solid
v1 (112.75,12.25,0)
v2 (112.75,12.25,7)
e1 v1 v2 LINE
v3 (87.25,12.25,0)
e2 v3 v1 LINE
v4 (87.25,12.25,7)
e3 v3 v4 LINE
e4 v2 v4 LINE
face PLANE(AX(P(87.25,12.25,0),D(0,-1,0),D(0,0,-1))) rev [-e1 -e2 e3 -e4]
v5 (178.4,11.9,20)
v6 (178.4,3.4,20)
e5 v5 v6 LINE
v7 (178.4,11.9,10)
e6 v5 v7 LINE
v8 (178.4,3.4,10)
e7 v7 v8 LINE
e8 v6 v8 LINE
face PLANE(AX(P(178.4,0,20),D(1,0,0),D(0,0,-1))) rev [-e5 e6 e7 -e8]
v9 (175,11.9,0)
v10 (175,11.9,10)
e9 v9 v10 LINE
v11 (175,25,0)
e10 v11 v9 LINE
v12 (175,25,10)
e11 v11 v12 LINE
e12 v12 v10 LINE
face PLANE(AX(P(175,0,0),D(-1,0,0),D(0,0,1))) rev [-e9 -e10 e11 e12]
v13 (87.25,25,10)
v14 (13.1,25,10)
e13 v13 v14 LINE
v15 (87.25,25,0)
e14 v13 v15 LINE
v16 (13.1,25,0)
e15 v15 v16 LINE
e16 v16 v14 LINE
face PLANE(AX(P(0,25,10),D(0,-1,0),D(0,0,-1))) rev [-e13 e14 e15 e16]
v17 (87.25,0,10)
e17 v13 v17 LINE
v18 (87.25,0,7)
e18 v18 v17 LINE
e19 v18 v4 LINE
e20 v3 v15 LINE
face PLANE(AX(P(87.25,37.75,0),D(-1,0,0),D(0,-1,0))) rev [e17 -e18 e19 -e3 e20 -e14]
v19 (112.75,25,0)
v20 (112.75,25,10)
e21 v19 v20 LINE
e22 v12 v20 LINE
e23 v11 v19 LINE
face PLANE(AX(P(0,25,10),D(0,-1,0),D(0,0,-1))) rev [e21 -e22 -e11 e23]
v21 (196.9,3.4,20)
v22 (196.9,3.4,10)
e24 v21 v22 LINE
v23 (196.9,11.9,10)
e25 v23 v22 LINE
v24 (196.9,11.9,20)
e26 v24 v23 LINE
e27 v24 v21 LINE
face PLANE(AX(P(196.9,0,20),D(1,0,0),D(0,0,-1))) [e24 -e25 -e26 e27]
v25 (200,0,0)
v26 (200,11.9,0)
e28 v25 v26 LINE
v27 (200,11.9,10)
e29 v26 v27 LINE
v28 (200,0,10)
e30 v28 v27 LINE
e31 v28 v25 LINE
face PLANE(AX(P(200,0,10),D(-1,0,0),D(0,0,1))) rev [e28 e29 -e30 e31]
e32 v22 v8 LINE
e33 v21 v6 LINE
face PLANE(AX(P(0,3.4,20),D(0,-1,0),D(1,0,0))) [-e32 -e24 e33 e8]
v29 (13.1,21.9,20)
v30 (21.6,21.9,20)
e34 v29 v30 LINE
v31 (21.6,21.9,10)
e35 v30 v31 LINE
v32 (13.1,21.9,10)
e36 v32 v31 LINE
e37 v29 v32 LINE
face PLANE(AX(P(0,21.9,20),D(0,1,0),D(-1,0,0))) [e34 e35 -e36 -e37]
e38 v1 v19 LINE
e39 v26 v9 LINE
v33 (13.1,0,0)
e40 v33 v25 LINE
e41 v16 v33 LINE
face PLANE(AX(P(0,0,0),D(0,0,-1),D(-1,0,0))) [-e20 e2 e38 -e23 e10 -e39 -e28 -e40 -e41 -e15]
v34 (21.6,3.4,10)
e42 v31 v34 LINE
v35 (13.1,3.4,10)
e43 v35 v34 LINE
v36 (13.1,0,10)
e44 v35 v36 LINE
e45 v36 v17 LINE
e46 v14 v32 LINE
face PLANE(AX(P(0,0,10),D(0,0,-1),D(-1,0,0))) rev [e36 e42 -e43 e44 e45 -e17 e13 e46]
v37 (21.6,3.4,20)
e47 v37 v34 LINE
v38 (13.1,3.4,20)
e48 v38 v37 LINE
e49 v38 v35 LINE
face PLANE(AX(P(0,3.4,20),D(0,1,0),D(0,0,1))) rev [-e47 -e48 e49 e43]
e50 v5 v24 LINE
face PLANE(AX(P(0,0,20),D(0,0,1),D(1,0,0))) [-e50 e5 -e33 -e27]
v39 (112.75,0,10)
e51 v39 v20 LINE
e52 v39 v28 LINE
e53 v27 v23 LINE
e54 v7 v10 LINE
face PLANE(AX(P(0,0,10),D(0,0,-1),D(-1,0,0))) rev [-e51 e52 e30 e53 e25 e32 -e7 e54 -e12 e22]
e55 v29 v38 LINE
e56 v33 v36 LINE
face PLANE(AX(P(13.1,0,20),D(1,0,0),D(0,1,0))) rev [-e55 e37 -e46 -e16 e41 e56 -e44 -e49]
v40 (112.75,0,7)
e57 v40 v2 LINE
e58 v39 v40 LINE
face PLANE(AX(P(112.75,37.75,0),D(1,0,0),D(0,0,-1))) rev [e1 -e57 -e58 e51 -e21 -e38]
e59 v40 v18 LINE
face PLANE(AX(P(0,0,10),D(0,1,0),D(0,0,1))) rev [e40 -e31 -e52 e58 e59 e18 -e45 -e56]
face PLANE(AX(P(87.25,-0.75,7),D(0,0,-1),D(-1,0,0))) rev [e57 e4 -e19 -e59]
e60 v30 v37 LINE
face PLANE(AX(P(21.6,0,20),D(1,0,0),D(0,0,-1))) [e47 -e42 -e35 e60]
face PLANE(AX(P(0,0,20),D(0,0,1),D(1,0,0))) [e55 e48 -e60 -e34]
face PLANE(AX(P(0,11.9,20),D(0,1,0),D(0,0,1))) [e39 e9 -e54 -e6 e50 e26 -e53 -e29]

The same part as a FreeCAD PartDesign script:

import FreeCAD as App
import Part
import Sketcher


def add_polygon(sketch, points):
    """Adds a closed chain of lines whose ends are joined by coincident constraints."""
    first, n = sketch.GeometryCount, len(points)
    for a, b in zip(points, points[1:] + points[:1]):
        sketch.addGeometry(Part.LineSegment(App.Vector(*a, 0), App.Vector(*b, 0)), False)
    for i in range(n):
        sketch.addConstraint(Sketcher.Constraint("Coincident", first + i, 2, first + (i + 1) % n, 1))

doc = App.newDocument("Part")
body = doc.addObject("PartDesign::Body", "Body")

# Sketch on XY plane
sketch1 = doc.addObject("Sketcher::SketchObject", "Sketch")
body.addObject(sketch1)
sketch1.AttachmentSupport = (doc.XY_Plane, [""])
sketch1.MapMode = "FlatFace"
add_polygon(sketch1, [(0, 25), (0, 0), (200, 0), (200, 25)])  # lines 0-3
sketch1.addConstraint([
    Sketcher.Constraint("Vertical", 0),
    Sketcher.Constraint("Horizontal", 1),
    Sketcher.Constraint("Vertical", 2),
    Sketcher.Constraint("Horizontal", 3),
    Sketcher.Constraint("Coincident", 0, 2, -1, 1),
    Sketcher.Constraint("DistanceX", 1, 1, 1, 2, 200.0),
    Sketcher.Constraint("DistanceY", 0, 2, 0, 1, 25.0),
])
pad1 = doc.addObject("PartDesign::Pad", "Pad")
body.addObject(pad1)
pad1.Profile = sketch1
pad1.Length = 10

# Sketch on XY plane
sketch2 = doc.addObject("Sketcher::SketchObject", "Sketch001")
body.addObject(sketch2)
sketch2.AttachmentSupport = (doc.XY_Plane, [""])
sketch2.MapMode = "FlatFace"
sketch2.AttachmentOffset = App.Placement(App.Vector(0, 0, 10), App.Rotation())
add_polygon(sketch2, [(87, 38), (87, 12), (113, 12), (113, 38)])  # lines 0-3
sketch2.addConstraint([
    Sketcher.Constraint("Vertical", 0),
    Sketcher.Constraint("Horizontal", 1),
    Sketcher.Constraint("Vertical", 2),
    Sketcher.Constraint("Horizontal", 3),
    Sketcher.Constraint("Equal", 3, 0),
    Sketcher.Constraint("DistanceX", 1, 1, 1, 2, 25.5),
    Sketcher.Constraint("DistanceX", -1, 1, 0, 2, 87.25),
    Sketcher.Constraint("DistanceY", -1, 1, 0, 2, 12.25),
])
pocket1 = doc.addObject("PartDesign::Pocket", "Pocket")
body.addObject(pocket1)
pocket1.Profile = sketch2
pocket1.Length = 10

# Sketch on XY plane
sketch3 = doc.addObject("Sketcher::SketchObject", "Sketch002")
body.addObject(sketch3)
sketch3.AttachmentSupport = (doc.XY_Plane, [""])
sketch3.MapMode = "FlatFace"
sketch3.AttachmentOffset = App.Placement(App.Vector(0, 0, 10), App.Rotation())
add_polygon(sketch3, [(178, 12), (178, 3), (197, 3), (197, 12)])  # lines 0-3
add_polygon(sketch3, [(13, 22), (13, 3), (22, 3), (22, 22)])  # lines 4-7
sketch3.addConstraint([
    Sketcher.Constraint("Vertical", 0),
    Sketcher.Constraint("Horizontal", 1),
    Sketcher.Constraint("Vertical", 2),
    Sketcher.Constraint("Horizontal", 3),
    Sketcher.Constraint("Vertical", 4),
    Sketcher.Constraint("Horizontal", 5),
    Sketcher.Constraint("Vertical", 6),
    Sketcher.Constraint("Horizontal", 7),
    Sketcher.Constraint("Horizontal", 1, 2, 4, 2),
    Sketcher.Constraint("Equal", 7, 0),
    Sketcher.Constraint("Equal", 3, 4),
    Sketcher.Constraint("DistanceX", 1, 1, 1, 2, 18.5),
    Sketcher.Constraint("DistanceX", 5, 1, 5, 2, 8.5),
    Sketcher.Constraint("DistanceX", -1, 1, 0, 2, 178.4),
    Sketcher.Constraint("DistanceY", -1, 1, 0, 2, 3.4),
    Sketcher.Constraint("DistanceX", -1, 1, 4, 2, 13.1),
])
pad2 = doc.addObject("PartDesign::Pad", "Pad001")
body.addObject(pad2)
pad2.Profile = sketch3
pad2.Length = 10

# Sketch on XY plane
sketch4 = doc.addObject("Sketcher::SketchObject", "Sketch003")
body.addObject(sketch4)
sketch4.AttachmentSupport = (doc.XY_Plane, [""])
sketch4.MapMode = "FlatFace"
sketch4.AttachmentOffset = App.Placement(App.Vector(0, 0, 10), App.Rotation())
add_polygon(sketch4, [(0, 25), (0, 0), (13, 0), (13, 25)])  # lines 0-3
add_polygon(sketch4, [(175, 25), (175, 12), (200, 12), (200, 25)])  # lines 4-7
sketch4.addConstraint([
    Sketcher.Constraint("Vertical", 0),
    Sketcher.Constraint("Horizontal", 1),
    Sketcher.Constraint("Vertical", 2),
    Sketcher.Constraint("Horizontal", 3),
    Sketcher.Constraint("Vertical", 4),
    Sketcher.Constraint("Horizontal", 5),
    Sketcher.Constraint("Vertical", 6),
    Sketcher.Constraint("Horizontal", 7),
    Sketcher.Constraint("Coincident", 0, 2, -1, 1),
    Sketcher.Constraint("Horizontal", 3, 2, 6, 2),
    Sketcher.Constraint("Equal", 7, 0),
    Sketcher.Constraint("Equal", 3, 4),
    Sketcher.Constraint("DistanceX", 5, 1, 5, 2, 25.0),
    Sketcher.Constraint("DistanceX", 1, 1, 1, 2, 13.1),
    Sketcher.Constraint("DistanceX", -1, 1, 4, 2, 175.0),
])
pocket2 = doc.addObject("PartDesign::Pocket", "Pocket001")
body.addObject(pocket2)
pocket2.Profile = sketch4
pocket2.Length = 10

# Sketch on XZ plane
sketch5 = doc.addObject("Sketcher::SketchObject", "Sketch004")
body.addObject(sketch5)
sketch5.AttachmentSupport = (doc.XZ_Plane, [""])
sketch5.MapMode = "FlatFace"
sketch5.AttachmentOffset = App.Placement(App.Vector(0, 0, -12.25), App.Rotation())
add_polygon(sketch5, [(87.2, 7), (87.2, 10), (112.8, 10), (112.8, 7)])  # lines 0-3
sketch5.addConstraint([
    Sketcher.Constraint("Vertical", 0),
    Sketcher.Constraint("Horizontal", 1),
    Sketcher.Constraint("Vertical", 2),
    Sketcher.Constraint("Horizontal", 3),
    Sketcher.Constraint("DistanceY", 0, 1, 0, 2, 3.0),
    Sketcher.Constraint("DistanceX", 1, 1, 1, 2, 25.5),
    Sketcher.Constraint("DistanceY", -1, 1, 0, 2, 10.0),
    Sketcher.Constraint("DistanceX", -1, 1, 0, 2, 87.25),
])
pocket3 = doc.addObject("PartDesign::Pocket", "Pocket002")
body.addObject(pocket3)
pocket3.Profile = sketch5
pocket3.Length = 13
pocket3.Reversed = True

doc.recompute()
